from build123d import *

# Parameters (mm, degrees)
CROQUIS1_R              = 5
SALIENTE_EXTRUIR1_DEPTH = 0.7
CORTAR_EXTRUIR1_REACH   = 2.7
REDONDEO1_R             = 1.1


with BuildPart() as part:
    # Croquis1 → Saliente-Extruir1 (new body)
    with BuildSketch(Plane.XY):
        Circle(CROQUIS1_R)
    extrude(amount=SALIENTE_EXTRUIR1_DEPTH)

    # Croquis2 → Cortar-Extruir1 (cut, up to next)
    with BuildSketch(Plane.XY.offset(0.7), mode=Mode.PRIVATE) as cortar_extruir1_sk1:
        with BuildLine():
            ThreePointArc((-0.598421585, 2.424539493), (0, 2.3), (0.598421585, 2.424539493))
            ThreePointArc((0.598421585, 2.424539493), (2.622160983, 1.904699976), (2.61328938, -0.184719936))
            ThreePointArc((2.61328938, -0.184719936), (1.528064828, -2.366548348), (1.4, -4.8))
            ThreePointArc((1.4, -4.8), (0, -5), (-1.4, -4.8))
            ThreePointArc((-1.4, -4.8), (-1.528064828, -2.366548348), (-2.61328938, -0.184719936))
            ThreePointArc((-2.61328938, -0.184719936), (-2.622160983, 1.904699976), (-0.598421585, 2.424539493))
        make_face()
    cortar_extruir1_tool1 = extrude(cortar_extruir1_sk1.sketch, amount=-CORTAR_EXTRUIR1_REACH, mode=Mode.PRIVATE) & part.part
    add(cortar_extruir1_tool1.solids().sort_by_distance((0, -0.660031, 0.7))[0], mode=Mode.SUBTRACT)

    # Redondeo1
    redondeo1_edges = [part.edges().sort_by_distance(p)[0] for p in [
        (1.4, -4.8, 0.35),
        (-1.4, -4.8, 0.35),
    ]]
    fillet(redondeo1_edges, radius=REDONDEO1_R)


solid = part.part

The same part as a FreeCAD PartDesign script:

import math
import FreeCAD as App
import Part
import Sketcher

V = App.Vector
Q = App.Units.Quantity


def edges_at(feature, points):
    """Names of the edges that pass closest to the given points."""
    edges = feature.Shape.Edges
    near = lambda p: min(range(len(edges)), key=lambda i: edges[i].distToShape(Part.Vertex(*p))[0])
    return sorted({f"Edge{near(p) + 1}" for p in points})

doc = App.newDocument("Part")
body = doc.addObject("PartDesign::Body", "Body")

sketch1 = doc.addObject("Sketcher::SketchObject", "Sketch")
body.addObject(sketch1)
sketch1.AttachmentSupport = (doc.XY_Plane, [""])
sketch1.MapMode = "FlatFace"
sketch1.addGeometry(Part.Circle(V(0, 0, 0), V(0, 0, 1), 5), False)
sketch1.addConstraint([
    Sketcher.Constraint("Coincident", 0, 3, -1, 1),
    Sketcher.Constraint("Diameter", 0, Q("10 mm")),
])
pad1 = doc.addObject("PartDesign::Pad", "Pad")
body.addObject(pad1)
pad1.Profile = sketch1
pad1.Length = 0.7

sketch2 = doc.addObject("Sketcher::SketchObject", "Sketch001")
body.addObject(sketch2)
sketch2.AttachmentSupport = (doc.XY_Plane, [""])
sketch2.MapMode = "FlatFace"
sketch2.AttachmentOffset = App.Placement(V(0, 0, 0.7), App.Rotation())
sketch2.addGeometry([
    Part.ArcOfCircle(Part.Circle(V(0, 3.8, 0), V(0, 0, 1), 1.5), math.radians(-114), math.radians(-66)),
    Part.ArcOfCircle(Part.Circle(V(-1.3, 0.9, 0), V(0, 0, 1), 1.7), math.radians(66), math.radians(218)),
    Part.ArcOfCircle(Part.Circle(V(-7.3, -3.9, 0), V(0, 0, 1), 6), math.radians(-9), math.radians(38)),
    Part.ArcOfCircle(Part.Circle(V(0, 0, 0), V(0, 0, 1), 5), math.radians(-106), math.radians(-74)),
    Part.ArcOfCircle(Part.Circle(V(7.3, -3.9, 0), V(0, 0, 1), 6), math.radians(142), math.radians(189)),
    Part.ArcOfCircle(Part.Circle(V(1.3, 0.9, 0), V(0, 0, 1), 1.7), math.radians(-38), math.radians(114)),
], False)
sketch2.addConstraint([
    Sketcher.Constraint("Tangent", 0, 1, 1, 1),
    Sketcher.Constraint("Tangent", 1, 2, 2, 2),
    Sketcher.Constraint("Coincident", 2, 1, 3, 1),
    Sketcher.Constraint("Coincident", 3, 2, 4, 2),
    Sketcher.Constraint("Tangent", 4, 1, 5, 1),
    Sketcher.Constraint("Tangent", 5, 2, 0, 2),
    Sketcher.Constraint("Coincident", 3, 3, -1, 1),
    Sketcher.Constraint("Equal", 2, 4),
    Sketcher.Constraint("Equal", 1, 5),
    Sketcher.Constraint("Symmetric", 2, 3, 4, 3, -2),
    Sketcher.Constraint("PointOnObject", 0, 3, -2),
    Sketcher.Constraint("Radius", 2, Q("6 mm")),
    Sketcher.Constraint("Radius", 3, Q("5 mm")),
    Sketcher.Constraint("Radius", 0, Q("1.5 mm")),
    Sketcher.Constraint("Radius", 1, Q("1.7 mm")),
    Sketcher.Constraint("DistanceY", -1, 1, 0, 3, Q("3.8 mm")),
    Sketcher.Constraint("DistanceX", 2, 1, -1, 1, Q("1.4 mm")),
    Sketcher.Constraint("DistanceX", 2, 3, -1, 1, Q("7.330901 mm")),
])
pocket1 = doc.addObject("PartDesign::Pocket", "Pocket")
body.addObject(pocket1)
pocket1.Profile = sketch2
pocket1.Type = "UpToFirst"
doc.recompute()

fillet = doc.addObject("PartDesign::Fillet", "Fillet")
body.addObject(fillet)
fillet.Base = (pocket1, edges_at(pocket1, [(1.4, -4.8, 0.35), (-1.4, -4.8, 0.35)]))
fillet.Radius = 1.1

doc.recompute()
